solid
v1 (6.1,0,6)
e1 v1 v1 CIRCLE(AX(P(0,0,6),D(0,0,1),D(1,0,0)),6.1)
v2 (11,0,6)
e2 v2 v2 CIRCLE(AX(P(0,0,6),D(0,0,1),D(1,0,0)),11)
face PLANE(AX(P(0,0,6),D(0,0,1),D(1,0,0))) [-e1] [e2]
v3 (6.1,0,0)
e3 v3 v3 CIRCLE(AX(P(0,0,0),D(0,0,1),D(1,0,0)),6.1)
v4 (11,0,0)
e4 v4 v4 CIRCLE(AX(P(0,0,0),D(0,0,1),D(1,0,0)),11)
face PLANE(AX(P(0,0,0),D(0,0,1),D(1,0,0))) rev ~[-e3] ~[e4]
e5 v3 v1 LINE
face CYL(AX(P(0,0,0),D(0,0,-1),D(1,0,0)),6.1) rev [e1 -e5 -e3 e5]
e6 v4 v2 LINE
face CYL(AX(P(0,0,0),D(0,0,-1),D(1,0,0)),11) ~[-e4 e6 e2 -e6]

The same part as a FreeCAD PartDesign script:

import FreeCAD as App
import Part
import Sketcher
Q = App.Units.Quantity

doc = App.newDocument("Part")
params = doc.addObject("Spreadsheet::Sheet", "Params")
for row, (alias, value) in enumerate([
    ("sketch1_diameter", "12.2 mm"),
    ("sketch1_diameter2", "22 mm"),
    ("pad1_length", "6 mm"),
], start=1):
    params.set(f"A{row}", alias)
    params.set(f"B{row}", "=" + value)
    params.setAlias(f"B{row}", alias)

body = doc.addObject("PartDesign::Body", "Body")

sketch1 = body.newObject("Sketcher::SketchObject", "Sketch")
sketch1.AttachmentSupport = (doc.getObject("XY_Plane"), [""])
sketch1.MapMode = "FlatFace"
sketch1.addGeometry(Part.Circle(App.Vector(0, 0, 0), App.Vector(0, 0, 1), 11), False)
sketch1.addGeometry(Part.Circle(App.Vector(0, 0, 0), App.Vector(0, 0, 1), 6), False)
sketch1.addConstraint(Sketcher.Constraint("Coincident", 0, 3, -1, 1))
sketch1.addConstraint(Sketcher.Constraint("Coincident", 1, 3, -1, 1))
sketch1.addConstraint(Sketcher.Constraint("Diameter", 1, Q("12.2 mm")))
sketch1.addConstraint(Sketcher.Constraint("Diameter", 0, Q("22 mm")))
sketch1.setExpression("Constraints[2]", "Params.sketch1_diameter")
sketch1.setExpression("Constraints[3]", "Params.sketch1_diameter2")
pad1 = body.newObject("PartDesign::Pad", "Pad")
pad1.Profile = sketch1
pad1.setExpression("Length", "Params.pad1_length")

doc.recompute()
